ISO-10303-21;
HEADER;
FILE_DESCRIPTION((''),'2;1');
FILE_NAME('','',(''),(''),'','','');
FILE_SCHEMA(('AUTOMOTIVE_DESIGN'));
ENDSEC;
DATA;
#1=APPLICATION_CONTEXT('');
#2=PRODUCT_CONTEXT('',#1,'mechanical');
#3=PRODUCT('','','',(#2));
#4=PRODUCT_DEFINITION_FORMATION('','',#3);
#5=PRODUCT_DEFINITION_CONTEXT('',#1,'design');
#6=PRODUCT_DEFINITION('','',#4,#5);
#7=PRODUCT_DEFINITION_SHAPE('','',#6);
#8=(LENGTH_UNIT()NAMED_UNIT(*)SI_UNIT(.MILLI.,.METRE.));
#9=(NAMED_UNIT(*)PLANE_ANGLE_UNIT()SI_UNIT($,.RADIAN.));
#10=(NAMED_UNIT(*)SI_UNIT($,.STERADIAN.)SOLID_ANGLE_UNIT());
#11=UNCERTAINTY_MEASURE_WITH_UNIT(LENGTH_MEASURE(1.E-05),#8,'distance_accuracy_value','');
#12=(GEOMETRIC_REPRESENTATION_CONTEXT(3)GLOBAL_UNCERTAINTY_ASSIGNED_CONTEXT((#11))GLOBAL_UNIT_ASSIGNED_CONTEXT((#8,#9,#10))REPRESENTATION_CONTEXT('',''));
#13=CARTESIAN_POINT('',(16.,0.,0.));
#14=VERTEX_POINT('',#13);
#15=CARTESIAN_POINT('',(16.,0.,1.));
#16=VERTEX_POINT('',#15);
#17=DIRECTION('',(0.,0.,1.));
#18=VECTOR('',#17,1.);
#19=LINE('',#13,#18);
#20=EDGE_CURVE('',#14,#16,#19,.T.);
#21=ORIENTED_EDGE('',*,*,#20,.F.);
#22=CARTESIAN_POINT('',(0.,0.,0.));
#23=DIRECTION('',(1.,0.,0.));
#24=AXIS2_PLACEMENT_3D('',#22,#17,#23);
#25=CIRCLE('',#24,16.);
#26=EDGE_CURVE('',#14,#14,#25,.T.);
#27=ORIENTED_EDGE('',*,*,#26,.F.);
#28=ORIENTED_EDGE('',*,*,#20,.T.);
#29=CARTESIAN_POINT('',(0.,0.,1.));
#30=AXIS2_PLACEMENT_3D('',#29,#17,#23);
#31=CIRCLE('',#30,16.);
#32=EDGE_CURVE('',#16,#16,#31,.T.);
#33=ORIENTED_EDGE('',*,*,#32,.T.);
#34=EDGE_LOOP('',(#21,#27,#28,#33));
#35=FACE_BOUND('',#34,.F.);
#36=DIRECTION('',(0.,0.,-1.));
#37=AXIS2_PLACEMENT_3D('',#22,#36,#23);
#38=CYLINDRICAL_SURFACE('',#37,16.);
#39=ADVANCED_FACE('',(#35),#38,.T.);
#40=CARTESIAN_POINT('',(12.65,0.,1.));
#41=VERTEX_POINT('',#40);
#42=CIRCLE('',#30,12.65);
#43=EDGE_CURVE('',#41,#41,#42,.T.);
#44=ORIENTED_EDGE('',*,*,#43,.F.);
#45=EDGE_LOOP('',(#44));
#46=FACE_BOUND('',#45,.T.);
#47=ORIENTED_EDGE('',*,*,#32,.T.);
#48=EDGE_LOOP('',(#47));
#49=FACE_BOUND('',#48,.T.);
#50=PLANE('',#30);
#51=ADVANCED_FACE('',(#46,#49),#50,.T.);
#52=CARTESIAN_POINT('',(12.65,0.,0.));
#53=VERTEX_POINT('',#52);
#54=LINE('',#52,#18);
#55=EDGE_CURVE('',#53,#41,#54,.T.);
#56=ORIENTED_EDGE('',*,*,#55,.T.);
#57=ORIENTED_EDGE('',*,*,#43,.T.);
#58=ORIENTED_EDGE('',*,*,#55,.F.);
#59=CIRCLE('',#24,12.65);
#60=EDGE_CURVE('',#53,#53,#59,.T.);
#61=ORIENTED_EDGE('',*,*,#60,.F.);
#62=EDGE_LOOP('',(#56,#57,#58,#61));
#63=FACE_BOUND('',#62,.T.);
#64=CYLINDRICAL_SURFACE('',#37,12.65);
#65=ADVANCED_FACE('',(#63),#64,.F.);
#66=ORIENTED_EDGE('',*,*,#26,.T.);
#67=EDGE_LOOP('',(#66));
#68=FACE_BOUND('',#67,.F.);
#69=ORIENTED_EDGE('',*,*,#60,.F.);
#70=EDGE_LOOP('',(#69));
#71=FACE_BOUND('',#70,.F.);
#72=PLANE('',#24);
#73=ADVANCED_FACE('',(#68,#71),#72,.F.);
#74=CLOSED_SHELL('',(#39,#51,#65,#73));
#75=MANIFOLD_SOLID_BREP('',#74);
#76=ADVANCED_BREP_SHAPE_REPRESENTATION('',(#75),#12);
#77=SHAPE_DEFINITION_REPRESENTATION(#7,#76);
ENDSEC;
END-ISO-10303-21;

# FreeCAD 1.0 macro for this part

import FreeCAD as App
import Part
import Sketcher

doc = App.newDocument("Part")
body = doc.addObject("PartDesign::Body", "Body")

sketch1 = body.newObject("Sketcher::SketchObject", "Sketch")
sketch1.AttachmentSupport = (doc.getObject("XY_Plane"), [""])
sketch1.MapMode = "FlatFace"
sketch1.addGeometry([
    Part.Circle(App.Vector(0, 0, 0), App.Vector(0, 0, 1), 16),
    Part.Circle(App.Vector(0, 0, 0), App.Vector(0, 0, 1), 13),
], False)
sketch1.addConstraint([
    Sketcher.Constraint("Coincident", 0, 3, -1, 1),
    Sketcher.Constraint("Coincident", 1, 3, -1, 1),
    Sketcher.Constraint("Diameter", 0, 32.0),
    Sketcher.Constraint("Diameter", 1, 25.3),
])
pad1 = body.newObject("PartDesign::Pad", "Pad")
pad1.Profile = sketch1
pad1.Length = 1

doc.recompute()
